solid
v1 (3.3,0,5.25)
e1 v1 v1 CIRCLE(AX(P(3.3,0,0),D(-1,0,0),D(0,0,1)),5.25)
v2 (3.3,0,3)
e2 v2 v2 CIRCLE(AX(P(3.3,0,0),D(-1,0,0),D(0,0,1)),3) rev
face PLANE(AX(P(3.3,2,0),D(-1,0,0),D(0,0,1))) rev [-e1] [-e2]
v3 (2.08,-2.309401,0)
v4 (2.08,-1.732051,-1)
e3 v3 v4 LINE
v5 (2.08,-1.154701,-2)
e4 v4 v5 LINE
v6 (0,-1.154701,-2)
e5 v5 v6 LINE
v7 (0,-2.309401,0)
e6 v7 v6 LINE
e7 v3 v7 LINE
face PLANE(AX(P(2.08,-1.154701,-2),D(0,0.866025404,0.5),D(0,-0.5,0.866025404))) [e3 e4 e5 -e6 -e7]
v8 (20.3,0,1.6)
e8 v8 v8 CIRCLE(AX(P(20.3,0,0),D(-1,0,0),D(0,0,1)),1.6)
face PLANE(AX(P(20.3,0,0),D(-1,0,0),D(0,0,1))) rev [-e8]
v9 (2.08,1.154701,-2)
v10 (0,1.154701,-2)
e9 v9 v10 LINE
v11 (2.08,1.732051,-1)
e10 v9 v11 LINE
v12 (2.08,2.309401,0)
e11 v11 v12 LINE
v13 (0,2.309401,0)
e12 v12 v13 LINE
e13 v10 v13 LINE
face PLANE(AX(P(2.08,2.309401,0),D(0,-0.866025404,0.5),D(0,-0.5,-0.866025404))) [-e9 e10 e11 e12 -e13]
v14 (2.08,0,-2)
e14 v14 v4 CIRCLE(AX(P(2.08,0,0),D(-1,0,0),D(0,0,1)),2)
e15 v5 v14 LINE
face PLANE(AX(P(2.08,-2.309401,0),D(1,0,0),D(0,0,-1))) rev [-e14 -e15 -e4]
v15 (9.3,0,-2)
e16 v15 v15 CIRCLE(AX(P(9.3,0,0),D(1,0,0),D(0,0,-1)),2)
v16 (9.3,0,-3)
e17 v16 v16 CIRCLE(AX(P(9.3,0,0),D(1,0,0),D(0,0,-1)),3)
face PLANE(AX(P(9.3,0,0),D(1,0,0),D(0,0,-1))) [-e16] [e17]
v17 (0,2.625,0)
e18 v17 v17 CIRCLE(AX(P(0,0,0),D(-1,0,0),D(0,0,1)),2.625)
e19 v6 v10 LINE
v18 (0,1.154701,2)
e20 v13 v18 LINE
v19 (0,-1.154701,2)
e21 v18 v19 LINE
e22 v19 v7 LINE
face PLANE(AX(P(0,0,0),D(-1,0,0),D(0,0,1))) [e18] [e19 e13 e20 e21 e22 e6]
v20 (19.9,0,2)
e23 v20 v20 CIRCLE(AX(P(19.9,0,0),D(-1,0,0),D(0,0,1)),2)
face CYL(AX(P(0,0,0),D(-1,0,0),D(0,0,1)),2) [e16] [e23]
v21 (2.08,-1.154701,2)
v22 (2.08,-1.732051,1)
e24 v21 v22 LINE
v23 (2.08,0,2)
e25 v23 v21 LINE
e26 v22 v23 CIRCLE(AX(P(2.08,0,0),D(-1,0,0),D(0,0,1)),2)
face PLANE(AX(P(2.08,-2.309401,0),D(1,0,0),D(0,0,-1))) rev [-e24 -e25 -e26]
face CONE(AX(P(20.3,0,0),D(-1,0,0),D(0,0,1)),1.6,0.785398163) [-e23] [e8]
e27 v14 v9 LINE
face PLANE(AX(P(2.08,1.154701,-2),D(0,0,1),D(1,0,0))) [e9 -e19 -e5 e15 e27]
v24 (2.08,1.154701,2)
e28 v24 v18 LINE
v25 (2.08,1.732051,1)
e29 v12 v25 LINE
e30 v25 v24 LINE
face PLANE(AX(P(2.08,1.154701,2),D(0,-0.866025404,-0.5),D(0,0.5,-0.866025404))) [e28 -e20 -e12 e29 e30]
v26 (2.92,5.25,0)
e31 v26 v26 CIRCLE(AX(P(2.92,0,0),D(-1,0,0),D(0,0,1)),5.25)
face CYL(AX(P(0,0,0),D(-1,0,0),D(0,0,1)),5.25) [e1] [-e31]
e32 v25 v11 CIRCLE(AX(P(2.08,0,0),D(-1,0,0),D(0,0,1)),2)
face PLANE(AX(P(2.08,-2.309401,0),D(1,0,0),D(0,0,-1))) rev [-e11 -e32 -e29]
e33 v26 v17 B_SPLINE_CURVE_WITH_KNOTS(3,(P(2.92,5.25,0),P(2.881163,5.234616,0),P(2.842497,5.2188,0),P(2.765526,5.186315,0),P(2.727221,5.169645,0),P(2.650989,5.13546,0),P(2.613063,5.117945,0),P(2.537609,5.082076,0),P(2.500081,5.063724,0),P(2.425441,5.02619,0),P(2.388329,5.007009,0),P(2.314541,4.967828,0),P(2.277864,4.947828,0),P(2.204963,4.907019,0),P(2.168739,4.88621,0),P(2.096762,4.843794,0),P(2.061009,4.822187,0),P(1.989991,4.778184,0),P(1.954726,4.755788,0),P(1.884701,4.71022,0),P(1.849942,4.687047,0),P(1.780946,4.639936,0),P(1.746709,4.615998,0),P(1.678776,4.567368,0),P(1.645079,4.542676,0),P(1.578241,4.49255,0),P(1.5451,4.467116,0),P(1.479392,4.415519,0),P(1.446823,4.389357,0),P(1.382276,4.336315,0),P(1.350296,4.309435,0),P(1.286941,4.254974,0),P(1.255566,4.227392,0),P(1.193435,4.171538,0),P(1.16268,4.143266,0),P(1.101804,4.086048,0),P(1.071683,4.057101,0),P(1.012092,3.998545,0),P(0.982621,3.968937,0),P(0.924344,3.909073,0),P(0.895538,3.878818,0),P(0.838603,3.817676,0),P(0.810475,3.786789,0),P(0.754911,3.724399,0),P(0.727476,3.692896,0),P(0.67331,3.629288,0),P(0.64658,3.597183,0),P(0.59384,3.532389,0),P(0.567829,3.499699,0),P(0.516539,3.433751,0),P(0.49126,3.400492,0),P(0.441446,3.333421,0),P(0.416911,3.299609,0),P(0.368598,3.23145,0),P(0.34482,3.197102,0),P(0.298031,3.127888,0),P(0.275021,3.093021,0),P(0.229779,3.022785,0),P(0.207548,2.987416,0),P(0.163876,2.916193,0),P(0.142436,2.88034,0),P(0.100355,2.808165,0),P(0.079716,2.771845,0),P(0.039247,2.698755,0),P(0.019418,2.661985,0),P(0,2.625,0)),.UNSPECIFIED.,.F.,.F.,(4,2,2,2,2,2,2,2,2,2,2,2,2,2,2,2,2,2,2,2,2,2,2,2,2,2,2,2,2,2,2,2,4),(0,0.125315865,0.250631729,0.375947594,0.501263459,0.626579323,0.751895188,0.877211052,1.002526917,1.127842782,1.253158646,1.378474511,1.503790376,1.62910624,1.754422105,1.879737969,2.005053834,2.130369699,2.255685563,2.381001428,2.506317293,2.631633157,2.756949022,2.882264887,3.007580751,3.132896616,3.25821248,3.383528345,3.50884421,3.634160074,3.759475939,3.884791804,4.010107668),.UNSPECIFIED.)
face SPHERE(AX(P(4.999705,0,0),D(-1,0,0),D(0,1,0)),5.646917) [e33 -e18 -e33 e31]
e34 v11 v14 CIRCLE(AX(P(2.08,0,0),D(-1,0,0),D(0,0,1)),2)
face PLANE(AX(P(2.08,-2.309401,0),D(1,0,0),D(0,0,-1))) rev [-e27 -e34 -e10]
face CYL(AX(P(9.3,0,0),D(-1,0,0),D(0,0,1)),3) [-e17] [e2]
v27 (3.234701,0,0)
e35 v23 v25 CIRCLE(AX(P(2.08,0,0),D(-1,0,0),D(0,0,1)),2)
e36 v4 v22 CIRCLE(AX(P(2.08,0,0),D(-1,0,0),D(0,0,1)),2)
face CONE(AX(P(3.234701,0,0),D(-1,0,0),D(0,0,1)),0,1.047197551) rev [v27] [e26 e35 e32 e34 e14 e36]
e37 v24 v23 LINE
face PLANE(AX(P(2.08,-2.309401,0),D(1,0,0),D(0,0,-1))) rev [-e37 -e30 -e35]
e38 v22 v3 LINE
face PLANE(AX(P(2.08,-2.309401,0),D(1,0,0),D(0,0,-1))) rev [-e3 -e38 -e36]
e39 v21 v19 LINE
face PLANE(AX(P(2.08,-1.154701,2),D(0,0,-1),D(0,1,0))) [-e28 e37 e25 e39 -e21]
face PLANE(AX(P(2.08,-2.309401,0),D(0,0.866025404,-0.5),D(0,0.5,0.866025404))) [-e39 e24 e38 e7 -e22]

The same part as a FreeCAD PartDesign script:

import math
import FreeCAD as App
import Part
import Sketcher

V = App.Vector
Q = App.Units.Quantity


def edges_at(feature, points):
    """Names of the edges that pass closest to the given points."""
    edges = feature.Shape.Edges
    near = lambda p: min(range(len(edges)), key=lambda i: edges[i].distToShape(Part.Vertex(*p))[0])
    return sorted({f"Edge{near(p) + 1}" for p in points})

doc = App.newDocument("Part")
body = doc.addObject("PartDesign::Body", "Body")

sketch1 = body.newObject("Sketcher::SketchObject", "Sketch")
sketch1.AttachmentSupport = (doc.getObject("XY_Plane"), [""])
sketch1.MapMode = "FlatFace"
sketch1.addGeometry([
    Part.LineSegment(V(20.3, 0, 0), V(20.3, 1.6, 0)),
    Part.LineSegment(V(20.3, 1.6, 0), V(19.9, 2, 0)),
    Part.LineSegment(V(19.9, 2, 0), V(3.3, 2, 0)),
    Part.LineSegment(V(3.3, 2, 0), V(3.3, 5.25, 0)),
    Part.LineSegment(V(3.3, 5.25, 0), V(2.92, 5.25, 0)),
    Part.ArcOfCircle(Part.Circle(V(5, 0, 0), V(0, 0, 1), 5.65), math.radians(112), math.radians(152)),
    Part.LineSegment(V(0, 2.62, 0), V(0, 0, 0)),
    Part.LineSegment(V(0, 0, 0), V(20.3, 0, 0)),
], False)
sketch1.addConstraint([
    Sketcher.Constraint("Coincident", 0, 2, 1, 1),
    Sketcher.Constraint("Coincident", 1, 2, 2, 1),
    Sketcher.Constraint("Coincident", 2, 2, 3, 1),
    Sketcher.Constraint("Coincident", 3, 2, 4, 1),
    Sketcher.Constraint("Coincident", 4, 2, 5, 1),
    Sketcher.Constraint("Coincident", 5, 2, 6, 1),
    Sketcher.Constraint("Coincident", 6, 2, 7, 1),
    Sketcher.Constraint("Coincident", 7, 2, 0, 1),
    Sketcher.Constraint("Vertical", 0),
    Sketcher.Constraint("Horizontal", 2),
    Sketcher.Constraint("Vertical", 3),
    Sketcher.Constraint("Horizontal", 4),
    Sketcher.Constraint("Vertical", 6),
    Sketcher.Constraint("Horizontal", 7),
    Sketcher.Constraint("Coincident", 6, 2, -1, 1),
    Sketcher.Constraint("PointOnObject", 5, 3, -1),
    Sketcher.Constraint("Angle", 1, Q("135 deg")),
    Sketcher.Constraint("DistanceX", 2, 2, 2, 1, Q("16.6 mm")),
    Sketcher.Constraint("DistanceX", 7, 1, 7, 2, Q("20.3 mm")),
    Sketcher.Constraint("DistanceY", 0, 1, 0, 2, Q("1.6 mm")),
    Sketcher.Constraint("DistanceY", -1, 1, 1, 2, Q("2 mm")),
    Sketcher.Constraint("DistanceX", 4, 2, 4, 1, Q("0.38 mm")),
    Sketcher.Constraint("DistanceY", 3, 1, 3, 2, Q("3.25 mm")),
    Sketcher.Constraint("DistanceY", 6, 2, 6, 1, Q("2.625 mm")),
])
revolution = body.newObject("PartDesign::Revolution", "Revolution")
revolution.Profile = sketch1
revolution.ReferenceAxis = (sketch1, ["H_Axis"])
revolution.Angle = 360
doc.recompute()

fillet = body.newObject("PartDesign::Fillet", "Fillet")
fillet.Base = (revolution, edges_at(revolution, [(3.3, 0, -2)]))
fillet.Radius = 0.01

sketch2 = body.newObject("Sketcher::SketchObject", "Sketch001")
sketch2.AttachmentSupport = (doc.getObject("XY_Plane"), [""])
sketch2.MapMode = "FlatFace"
sketch2.addGeometry([
    Part.LineSegment(V(2.1, 2, 0), V(0, 2, 0)),
    Part.LineSegment(V(0, 2, 0), V(0, 0, 0)),
    Part.LineSegment(V(0, 0, 0), V(3.2, 0, 0)),
    Part.LineSegment(V(3.2, 0, 0), V(2.1, 2, 0)),
], False)
sketch2.addConstraint([
    Sketcher.Constraint("Coincident", 0, 2, 1, 1),
    Sketcher.Constraint("Coincident", 1, 2, 2, 1),
    Sketcher.Constraint("Coincident", 2, 2, 3, 1),
    Sketcher.Constraint("Coincident", 3, 2, 0, 1),
    Sketcher.Constraint("Horizontal", 0),
    Sketcher.Constraint("Vertical", 1),
    Sketcher.Constraint("Horizontal", 2),
    Sketcher.Constraint("Coincident", 1, 2, -1, 1),
    Sketcher.Constraint("DistanceY", 1, 2, 1, 1, Q("2 mm")),
    Sketcher.Constraint("Angle", 3, Q("120 deg")),
    Sketcher.Constraint("DistanceX", 0, 2, 0, 1, Q("2.08 mm")),
])
groove = body.newObject("PartDesign::Groove", "Groove")
groove.Profile = sketch2
groove.ReferenceAxis = (sketch2, ["H_Axis"])
groove.Angle = 360

sketch3 = body.newObject("Sketcher::SketchObject", "Sketch002")
sketch3.AttachmentSupport = (doc.getObject("YZ_Plane"), [""])
sketch3.MapMode = "FlatFace"
sketch3.addGeometry([
    Part.LineSegment(V(1.2, 2, 0), V(-1.2, 2, 0)),
    Part.LineSegment(V(-1.2, 2, 0), V(-2.3, 0, 0)),
    Part.LineSegment(V(-2.3, 0, 0), V(-1.2, -2, 0)),
    Part.LineSegment(V(-1.2, -2, 0), V(1.2, -2, 0)),
    Part.LineSegment(V(1.2, -2, 0), V(2.3, 0, 0)),
    Part.LineSegment(V(2.3, 0, 0), V(1.2, 2, 0)),
], False)
sketch3.addConstraint([
    Sketcher.Constraint("Coincident", 0, 2, 1, 1),
    Sketcher.Constraint("Coincident", 1, 2, 2, 1),
    Sketcher.Constraint("Coincident", 2, 2, 3, 1),
    Sketcher.Constraint("Coincident", 3, 2, 4, 1),
    Sketcher.Constraint("Coincident", 4, 2, 5, 1),
    Sketcher.Constraint("Coincident", 5, 2, 0, 1),
    Sketcher.Constraint("Horizontal", 0),
    Sketcher.Constraint("Horizontal", 3),
    Sketcher.Constraint("Symmetric", 0, 2, 3, 2, -1, 1),
    Sketcher.Constraint("Symmetric", 1, 2, 4, 2, -1, 1),
    Sketcher.Constraint("PointOnObject", 1, 2, -1),
    Sketcher.Constraint("Parallel", 2, 5),
    Sketcher.Constraint("Vertical", 0, 2, 2, 2),
    Sketcher.Constraint("Angle", 1, Q("-120 deg")),
    Sketcher.Constraint("DistanceY", -1, 1, 0, 2, Q("2 mm")),
    Sketcher.Constraint("DistanceX", 0, 2, 0, 1, Q("2.309401 mm")),
])
pocket1 = body.newObject("PartDesign::Pocket", "Pocket")
pocket1.Profile = sketch3
pocket1.Length = 2.08
pocket1.Reversed = True

sketch4 = body.newObject("Sketcher::SketchObject", "Sketch003")
sketch4.AttachmentSupport = (doc.getObject("YZ_Plane"), [""])
sketch4.MapMode = "FlatFace"
sketch4.AttachmentOffset = App.Placement(V(0, 0, 3.3), App.Rotation())
sketch4.addGeometry(Part.Circle(V(0, 0, 0), V(0, 0, 1), 3), False)
sketch4.addConstraint([
    Sketcher.Constraint("Coincident", 0, 3, -1, 1),
    Sketcher.Constraint("Diameter", 0, Q("6 mm")),
])
pad1 = body.newObject("PartDesign::Pad", "Pad")
pad1.Profile = sketch4
pad1.Length = 6

doc.recompute()
